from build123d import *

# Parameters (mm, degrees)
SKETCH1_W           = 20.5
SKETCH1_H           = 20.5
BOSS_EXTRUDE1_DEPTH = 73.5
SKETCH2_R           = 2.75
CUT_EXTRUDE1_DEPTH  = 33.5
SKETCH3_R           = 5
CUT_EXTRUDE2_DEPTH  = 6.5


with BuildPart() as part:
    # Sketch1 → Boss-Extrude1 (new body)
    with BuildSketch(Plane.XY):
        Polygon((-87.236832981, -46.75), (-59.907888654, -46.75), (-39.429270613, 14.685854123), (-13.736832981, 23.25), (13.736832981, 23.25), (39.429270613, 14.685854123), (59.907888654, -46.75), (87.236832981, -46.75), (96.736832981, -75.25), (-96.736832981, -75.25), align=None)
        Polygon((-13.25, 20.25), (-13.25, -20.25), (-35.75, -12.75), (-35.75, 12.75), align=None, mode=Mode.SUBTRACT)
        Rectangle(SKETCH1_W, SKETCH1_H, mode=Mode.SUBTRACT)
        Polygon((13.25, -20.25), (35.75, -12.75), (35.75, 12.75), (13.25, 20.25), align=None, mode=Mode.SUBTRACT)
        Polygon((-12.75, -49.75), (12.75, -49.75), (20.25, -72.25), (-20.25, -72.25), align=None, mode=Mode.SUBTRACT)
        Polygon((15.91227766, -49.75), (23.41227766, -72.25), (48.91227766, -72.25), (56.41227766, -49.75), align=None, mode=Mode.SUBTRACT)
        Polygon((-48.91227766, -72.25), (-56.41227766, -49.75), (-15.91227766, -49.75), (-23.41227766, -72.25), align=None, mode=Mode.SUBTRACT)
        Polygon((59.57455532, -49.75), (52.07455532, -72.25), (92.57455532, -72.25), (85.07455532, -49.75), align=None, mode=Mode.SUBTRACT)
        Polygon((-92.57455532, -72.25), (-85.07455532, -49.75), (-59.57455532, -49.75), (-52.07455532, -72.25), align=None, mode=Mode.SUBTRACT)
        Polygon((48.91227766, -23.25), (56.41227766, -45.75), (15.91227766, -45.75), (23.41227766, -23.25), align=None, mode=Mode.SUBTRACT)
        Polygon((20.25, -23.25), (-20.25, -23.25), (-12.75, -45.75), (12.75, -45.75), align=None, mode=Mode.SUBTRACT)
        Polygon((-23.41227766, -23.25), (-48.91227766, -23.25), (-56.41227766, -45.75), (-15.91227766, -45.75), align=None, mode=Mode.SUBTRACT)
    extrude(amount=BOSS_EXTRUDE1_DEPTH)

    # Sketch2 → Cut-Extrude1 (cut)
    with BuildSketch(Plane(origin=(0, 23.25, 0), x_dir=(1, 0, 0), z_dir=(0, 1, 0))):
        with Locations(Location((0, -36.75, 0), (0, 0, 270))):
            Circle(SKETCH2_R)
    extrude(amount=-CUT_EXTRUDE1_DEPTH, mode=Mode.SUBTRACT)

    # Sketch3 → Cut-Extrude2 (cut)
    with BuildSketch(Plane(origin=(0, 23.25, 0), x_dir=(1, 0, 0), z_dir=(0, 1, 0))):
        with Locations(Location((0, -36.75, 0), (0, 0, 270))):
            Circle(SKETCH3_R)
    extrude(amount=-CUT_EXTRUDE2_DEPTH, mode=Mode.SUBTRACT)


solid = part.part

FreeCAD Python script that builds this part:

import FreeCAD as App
import Part
import Sketcher
from FreeCAD import Vector
Q = App.Units.Quantity

doc = App.newDocument("Part")
body = doc.addObject("PartDesign::Body", "Body")

sketch1 = body.newObject("Sketcher::SketchObject", "Sketch")
sketch1.AttachmentSupport = (doc.getObject("XY_Plane"), [""])
sketch1.MapMode = "FlatFace"
sketch1.addGeometry(Part.LineSegment(Vector(-60, -47, 0), Vector(-87, -47, 0)), False)
sketch1.addGeometry(Part.LineSegment(Vector(-87, -47, 0), Vector(-97, -75, 0)), False)
sketch1.addGeometry(Part.LineSegment(Vector(-97, -75, 0), Vector(97, -75, 0)), False)
sketch1.addGeometry(Part.LineSegment(Vector(97, -75, 0), Vector(87, -47, 0)), False)
sketch1.addGeometry(Part.LineSegment(Vector(87, -47, 0), Vector(60, -47, 0)), False)
sketch1.addGeometry(Part.LineSegment(Vector(60, -47, 0), Vector(39, 15, 0)), False)
sketch1.addGeometry(Part.LineSegment(Vector(39, 15, 0), Vector(14, 23, 0)), False)
sketch1.addGeometry(Part.LineSegment(Vector(14, 23, 0), Vector(-14, 23, 0)), False)
sketch1.addGeometry(Part.LineSegment(Vector(-14, 23, 0), Vector(-39, 15, 0)), False)
sketch1.addGeometry(Part.LineSegment(Vector(-39, 15, 0), Vector(-60, -47, 0)), False)
sketch1.addGeometry(Part.LineSegment(Vector(60, -50, 0), Vector(85, -50, 0)), False)
sketch1.addGeometry(Part.LineSegment(Vector(85, -50, 0), Vector(93, -72, 0)), False)
sketch1.addGeometry(Part.LineSegment(Vector(93, -72, 0), Vector(52, -72, 0)), False)
sketch1.addGeometry(Part.LineSegment(Vector(52, -72, 0), Vector(60, -50, 0)), False)
sketch1.addGeometry(Part.LineSegment(Vector(16, -50, 0), Vector(56, -50, 0)), False)
sketch1.addGeometry(Part.LineSegment(Vector(56, -50, 0), Vector(49, -72, 0)), False)
sketch1.addGeometry(Part.LineSegment(Vector(49, -72, 0), Vector(23, -72, 0)), False)
sketch1.addGeometry(Part.LineSegment(Vector(23, -72, 0), Vector(16, -50, 0)), False)
sketch1.addGeometry(Part.LineSegment(Vector(49, -23, 0), Vector(56, -46, 0)), False)
sketch1.addGeometry(Part.LineSegment(Vector(56, -46, 0), Vector(16, -46, 0)), False)
sketch1.addGeometry(Part.LineSegment(Vector(16, -46, 0), Vector(23, -23, 0)), False)
sketch1.addGeometry(Part.LineSegment(Vector(23, -23, 0), Vector(49, -23, 0)), False)
sketch1.addGeometry(Part.LineSegment(Vector(-13, -50, 0), Vector(13, -50, 0)), False)
sketch1.addGeometry(Part.LineSegment(Vector(13, -50, 0), Vector(20, -72, 0)), False)
sketch1.addGeometry(Part.LineSegment(Vector(20, -72, 0), Vector(-20, -72, 0)), False)
sketch1.addGeometry(Part.LineSegment(Vector(-20, -72, 0), Vector(-13, -50, 0)), False)
sketch1.addGeometry(Part.LineSegment(Vector(-49, -72, 0), Vector(-56, -50, 0)), False)
sketch1.addGeometry(Part.LineSegment(Vector(-56, -50, 0), Vector(-16, -50, 0)), False)
sketch1.addGeometry(Part.LineSegment(Vector(-16, -50, 0), Vector(-23, -72, 0)), False)
sketch1.addGeometry(Part.LineSegment(Vector(-23, -72, 0), Vector(-49, -72, 0)), False)
sketch1.addGeometry(Part.LineSegment(Vector(-93, -72, 0), Vector(-85, -50, 0)), False)
sketch1.addGeometry(Part.LineSegment(Vector(-85, -50, 0), Vector(-60, -50, 0)), False)
sketch1.addGeometry(Part.LineSegment(Vector(-60, -50, 0), Vector(-52, -72, 0)), False)
sketch1.addGeometry(Part.LineSegment(Vector(-52, -72, 0), Vector(-93, -72, 0)), False)
sketch1.addGeometry(Part.LineSegment(Vector(20, -23, 0), Vector(13, -46, 0)), False)
sketch1.addGeometry(Part.LineSegment(Vector(13, -46, 0), Vector(-13, -46, 0)), False)
sketch1.addGeometry(Part.LineSegment(Vector(-13, -46, 0), Vector(-20, -23, 0)), False)
sketch1.addGeometry(Part.LineSegment(Vector(-20, -23, 0), Vector(20, -23, 0)), False)
sketch1.addGeometry(Part.LineSegment(Vector(-23, -23, 0), Vector(-16, -46, 0)), False)
sketch1.addGeometry(Part.LineSegment(Vector(-16, -46, 0), Vector(-56, -46, 0)), False)
sketch1.addGeometry(Part.LineSegment(Vector(-56, -46, 0), Vector(-49, -23, 0)), False)
sketch1.addGeometry(Part.LineSegment(Vector(-49, -23, 0), Vector(-23, -23, 0)), False)
sketch1.addGeometry(Part.LineSegment(Vector(13, -20, 0), Vector(13, 20, 0)), False)
sketch1.addGeometry(Part.LineSegment(Vector(13, 20, 0), Vector(36, 13, 0)), False)
sketch1.addGeometry(Part.LineSegment(Vector(36, 13, 0), Vector(36, -13, 0)), False)
sketch1.addGeometry(Part.LineSegment(Vector(36, -13, 0), Vector(13, -20, 0)), False)
sketch1.addGeometry(Part.LineSegment(Vector(-10, -10, 0), Vector(-10, 10, 0)), False)
sketch1.addGeometry(Part.LineSegment(Vector(-10, 10, 0), Vector(10, 10, 0)), False)
sketch1.addGeometry(Part.LineSegment(Vector(10, 10, 0), Vector(10, -10, 0)), False)
sketch1.addGeometry(Part.LineSegment(Vector(10, -10, 0), Vector(-10, -10, 0)), False)
sketch1.addGeometry(Part.LineSegment(Vector(-13, 20, 0), Vector(-13, -20, 0)), False)
sketch1.addGeometry(Part.LineSegment(Vector(-13, -20, 0), Vector(-36, -13, 0)), False)
sketch1.addGeometry(Part.LineSegment(Vector(-36, -13, 0), Vector(-36, 13, 0)), False)
sketch1.addGeometry(Part.LineSegment(Vector(-36, 13, 0), Vector(-13, 20, 0)), False)
sketch1.addConstraint(Sketcher.Constraint("Coincident", 0, 2, 1, 1))
sketch1.addConstraint(Sketcher.Constraint("Coincident", 1, 2, 2, 1))
sketch1.addConstraint(Sketcher.Constraint("Coincident", 2, 2, 3, 1))
sketch1.addConstraint(Sketcher.Constraint("Coincident", 3, 2, 4, 1))
sketch1.addConstraint(Sketcher.Constraint("Coincident", 4, 2, 5, 1))
sketch1.addConstraint(Sketcher.Constraint("Coincident", 5, 2, 6, 1))
sketch1.addConstraint(Sketcher.Constraint("Coincident", 6, 2, 7, 1))
sketch1.addConstraint(Sketcher.Constraint("Coincident", 7, 2, 8, 1))
sketch1.addConstraint(Sketcher.Constraint("Coincident", 8, 2, 9, 1))
sketch1.addConstraint(Sketcher.Constraint("Coincident", 9, 2, 0, 1))
sketch1.addConstraint(Sketcher.Constraint("Coincident", 10, 2, 11, 1))
sketch1.addConstraint(Sketcher.Constraint("Coincident", 11, 2, 12, 1))
sketch1.addConstraint(Sketcher.Constraint("Coincident", 12, 2, 13, 1))
sketch1.addConstraint(Sketcher.Constraint("Coincident", 13, 2, 10, 1))
sketch1.addConstraint(Sketcher.Constraint("Coincident", 14, 2, 15, 1))
sketch1.addConstraint(Sketcher.Constraint("Coincident", 15, 2, 16, 1))
sketch1.addConstraint(Sketcher.Constraint("Coincident", 16, 2, 17, 1))
sketch1.addConstraint(Sketcher.Constraint("Coincident", 17, 2, 14, 1))
sketch1.addConstraint(Sketcher.Constraint("Coincident", 18, 2, 19, 1))
sketch1.addConstraint(Sketcher.Constraint("Coincident", 19, 2, 20, 1))
sketch1.addConstraint(Sketcher.Constraint("Coincident", 20, 2, 21, 1))
sketch1.addConstraint(Sketcher.Constraint("Coincident", 21, 2, 18, 1))
sketch1.addConstraint(Sketcher.Constraint("Coincident", 22, 2, 23, 1))
sketch1.addConstraint(Sketcher.Constraint("Coincident", 23, 2, 24, 1))
sketch1.addConstraint(Sketcher.Constraint("Coincident", 24, 2, 25, 1))
sketch1.addConstraint(Sketcher.Constraint("Coincident", 25, 2, 22, 1))
sketch1.addConstraint(Sketcher.Constraint("Coincident", 26, 2, 27, 1))
sketch1.addConstraint(Sketcher.Constraint("Coincident", 27, 2, 28, 1))
sketch1.addConstraint(Sketcher.Constraint("Coincident", 28, 2, 29, 1))
sketch1.addConstraint(Sketcher.Constraint("Coincident", 29, 2, 26, 1))
sketch1.addConstraint(Sketcher.Constraint("Coincident", 30, 2, 31, 1))
sketch1.addConstraint(Sketcher.Constraint("Coincident", 31, 2, 32, 1))
sketch1.addConstraint(Sketcher.Constraint("Coincident", 32, 2, 33, 1))
sketch1.addConstraint(Sketcher.Constraint("Coincident", 33, 2, 30, 1))
sketch1.addConstraint(Sketcher.Constraint("Coincident", 34, 2, 35, 1))
sketch1.addConstraint(Sketcher.Constraint("Coincident", 35, 2, 36, 1))
sketch1.addConstraint(Sketcher.Constraint("Coincident", 36, 2, 37, 1))
sketch1.addConstraint(Sketcher.Constraint("Coincident", 37, 2, 34, 1))
sketch1.addConstraint(Sketcher.Constraint("Coincident", 38, 2, 39, 1))
sketch1.addConstraint(Sketcher.Constraint("Coincident", 39, 2, 40, 1))
sketch1.addConstraint(Sketcher.Constraint("Coincident", 40, 2, 41, 1))
sketch1.addConstraint(Sketcher.Constraint("Coincident", 41, 2, 38, 1))
sketch1.addConstraint(Sketcher.Constraint("Coincident", 42, 2, 43, 1))
sketch1.addConstraint(Sketcher.Constraint("Coincident", 43, 2, 44, 1))
sketch1.addConstraint(Sketcher.Constraint("Coincident", 44, 2, 45, 1))
sketch1.addConstraint(Sketcher.Constraint("Coincident", 45, 2, 42, 1))
sketch1.addConstraint(Sketcher.Constraint("Coincident", 46, 2, 47, 1))
sketch1.addConstraint(Sketcher.Constraint("Coincident", 47, 2, 48, 1))
sketch1.addConstraint(Sketcher.Constraint("Coincident", 48, 2, 49, 1))
sketch1.addConstraint(Sketcher.Constraint("Coincident", 49, 2, 46, 1))
sketch1.addConstraint(Sketcher.Constraint("Coincident", 50, 2, 51, 1))
sketch1.addConstraint(Sketcher.Constraint("Coincident", 51, 2, 52, 1))
sketch1.addConstraint(Sketcher.Constraint("Coincident", 52, 2, 53, 1))
sketch1.addConstraint(Sketcher.Constraint("Coincident", 53, 2, 50, 1))
sketch1.addConstraint(Sketcher.Constraint("Horizontal", 0))
sketch1.addConstraint(Sketcher.Constraint("Horizontal", 2))
sketch1.addConstraint(Sketcher.Constraint("Horizontal", 4))
sketch1.addConstraint(Sketcher.Constraint("Horizontal", 7))
sketch1.addConstraint(Sketcher.Constraint("Horizontal", 10))
sketch1.addConstraint(Sketcher.Constraint("Horizontal", 12))
sketch1.addConstraint(Sketcher.Constraint("Horizontal", 14))
sketch1.addConstraint(Sketcher.Constraint("Horizontal", 16))
sketch1.addConstraint(Sketcher.Constraint("Horizontal", 19))
sketch1.addConstraint(Sketcher.Constraint("Horizontal", 21))
sketch1.addConstraint(Sketcher.Constraint("Horizontal", 22))
sketch1.addConstraint(Sketcher.Constraint("Horizontal", 24))
sketch1.addConstraint(Sketcher.Constraint("Horizontal", 27))
sketch1.addConstraint(Sketcher.Constraint("Horizontal", 29))
sketch1.addConstraint(Sketcher.Constraint("Horizontal", 31))
sketch1.addConstraint(Sketcher.Constraint("Horizontal", 33))
sketch1.addConstraint(Sketcher.Constraint("Horizontal", 35))
sketch1.addConstraint(Sketcher.Constraint("Horizontal", 37))
sketch1.addConstraint(Sketcher.Constraint("Horizontal", 39))
sketch1.addConstraint(Sketcher.Constraint("Horizontal", 41))
sketch1.addConstraint(Sketcher.Constraint("Vertical", 42))
sketch1.addConstraint(Sketcher.Constraint("Vertical", 44))
sketch1.addConstraint(Sketcher.Constraint("Vertical", 46))
sketch1.addConstraint(Sketcher.Constraint("Horizontal", 47))
sketch1.addConstraint(Sketcher.Constraint("Vertical", 48))
sketch1.addConstraint(Sketcher.Constraint("Horizontal", 49))
sketch1.addConstraint(Sketcher.Constraint("Vertical", 50))
sketch1.addConstraint(Sketcher.Constraint("Vertical", 52))
sketch1.addConstraint(Sketcher.Constraint("Symmetric", 46, 2, 48, 2, -1, 1))
sketch1.addConstraint(Sketcher.Constraint("Symmetric", 42, 2, 50, 2, -1, 1))
sketch1.addConstraint(Sketcher.Constraint("Symmetric", 43, 2, 51, 2, -1, 1))
sketch1.addConstraint(Sketcher.Constraint("Symmetric", 0, 2, 3, 2, -2))
sketch1.addConstraint(Sketcher.Constraint("Symmetric", 5, 2, 8, 2, -2))
sketch1.addConstraint(Sketcher.Constraint("Symmetric", 14, 2, 26, 2, -2))
sketch1.addConstraint(Sketcher.Constraint("Symmetric", 16, 2, 28, 2, -2))
sketch1.addConstraint(Sketcher.Constraint("Symmetric", 10, 2, 30, 2, -2))
sketch1.addConstraint(Sketcher.Constraint("Symmetric", 12, 2, 32, 2, -2))
sketch1.addConstraint(Sketcher.Constraint("Symmetric", 19, 2, 38, 2, -2))
sketch1.addConstraint(Sketcher.Constraint("Symmetric", 21, 2, 40, 2, -2))
sketch1.addConstraint(Sketcher.Constraint("Parallel", 3, 5))
sketch1.addConstraint(Sketcher.Constraint("Perpendicular", 1, 6))
sketch1.addConstraint(Sketcher.Constraint("Perpendicular", 5, 8))
sketch1.addConstraint(Sketcher.Constraint("Perpendicular", 6, 9))
sketch1.addConstraint(Sketcher.Constraint("Perpendicular", 8, 11))
sketch1.addConstraint(Sketcher.Constraint("Parallel", 9, 13))
sketch1.addConstraint(Sketcher.Constraint("Parallel", 13, 15))
sketch1.addConstraint(Sketcher.Constraint("Parallel", 11, 17))
sketch1.addConstraint(Sketcher.Constraint("Parallel", 17, 18))
sketch1.addConstraint(Sketcher.Constraint("Parallel", 15, 20))
sketch1.addConstraint(Sketcher.Constraint("Parallel", 18, 23))
sketch1.addConstraint(Sketcher.Constraint("Parallel", 20, 25))
sketch1.addConstraint(Sketcher.Constraint("Parallel", 23, 26))
sketch1.addConstraint(Sketcher.Constraint("Parallel", 25, 28))
sketch1.addConstraint(Sketcher.Constraint("Parallel", 28, 30))
sketch1.addConstraint(Sketcher.Constraint("Parallel", 26, 32))
sketch1.addConstraint(Sketcher.Constraint("Parallel", 30, 34))
sketch1.addConstraint(Sketcher.Constraint("Parallel", 32, 36))
sketch1.addConstraint(Sketcher.Constraint("Parallel", 36, 38))
sketch1.addConstraint(Sketcher.Constraint("Parallel", 34, 40))
sketch1.addConstraint(Sketcher.Constraint("Perpendicular", 40, 43))
sketch1.addConstraint(Sketcher.Constraint("Perpendicular", 38, 45))
sketch1.addConstraint(Sketcher.Constraint("Parallel", 45, 53))
sketch1.addConstraint(Sketcher.Constraint("Horizontal", 13, 2, 14, 2))
sketch1.addConstraint(Sketcher.Constraint("Horizontal", 12, 2, 15, 2))
sketch1.addConstraint(Sketcher.Constraint("Horizontal", 17, 2, 22, 2))
sketch1.addConstraint(Sketcher.Constraint("Horizontal", 16, 2, 23, 2))
sketch1.addConstraint(Sketcher.Constraint("Horizontal", 19, 2, 34, 2))
sketch1.addConstraint(Sketcher.Constraint("Horizontal", 21, 2, 36, 2))
sketch1.addConstraint(Sketcher.Constraint("Horizontal", 45, 2, 50, 2))
sketch1.addConstraint(Sketcher.Constraint("Horizontal", 44, 2, 51, 2))
sketch1.addConstraint(Sketcher.Constraint("Horizontal", 43, 2, 52, 2))
sketch1.addConstraint(Sketcher.Constraint("Vertical", 14, 2, 18, 2))
sketch1.addConstraint(Sketcher.Constraint("Vertical", 17, 2, 19, 2))
sketch1.addConstraint(Sketcher.Constraint("Vertical", 16, 2, 20, 2))
sketch1.addConstraint(Sketcher.Constraint("Vertical", 22, 2, 34, 2))
sketch1.addConstraint(Sketcher.Constraint("Vertical", 25, 2, 35, 2))
sketch1.addConstraint(Sketcher.Constraint("Equal", 12, 14))
sketch1.addConstraint(Sketcher.Constraint("Equal", 21, 22))
sketch1.addConstraint(Sketcher.Constraint("Equal", 39, 42))
sketch1.addConstraint(Sketcher.Constraint("Equal", 41, 44))
sketch1.addConstraint(Sketcher.Constraint("Equal", 49, 46))
sketch1.addConstraint(Sketcher.Constraint("DistanceX", 10, 1, 10, 2, Q("25.5 mm")))
sketch1.addConstraint(Sketcher.Constraint("DistanceX", 12, 2, 12, 1, Q("40.5 mm")))
sketch1.addConstraint(Sketcher.Constraint("DistanceX", 47, 1, 47, 2, Q("20.5 mm")))
sketch1.addConstraint(Sketcher.Constraint("DistanceY", 4, 2, 6, 2, Q("70 mm")))
sketch1.addConstraint(Sketcher.Constraint("DistanceX", 6, 2, 2, 2, Q("83 mm")))
sketch1.addConstraint(Sketcher.Constraint("DistanceY", 10, 2, 3, 2, Q("3 mm")))
sketch1.addConstraint(Sketcher.Constraint("DistanceY", 2, 2, 11, 2, Q("3 mm")))
sketch1.addConstraint(Sketcher.Constraint("DistanceY", 4, 2, 18, 2, Q("1 mm")))
sketch1.addConstraint(Sketcher.Constraint("DistanceY", 42, 2, 6, 2, Q("3 mm")))
sketch1.addConstraint(Sketcher.Constraint("DistanceX", 42, 2, 37, 2, Q("7 mm")))
sketch1.addConstraint(Sketcher.Constraint("DistanceY", 20, 2, 43, 2, Q("36 mm")))
sketch1.addConstraint(Sketcher.Constraint("DistanceX", 36, 2, 46, 2, Q("10 mm")))
sketch1.addConstraint(Sketcher.Constraint("DistanceX", 0, 2, 0, 1, Q("27.328944 mm")))
sketch1.addConstraint(Sketcher.Constraint("DistanceX", 2, 1, 2, 2, Q("193.473666 mm")))
sketch1.addConstraint(Sketcher.Constraint("DistanceX", 14, 2, 4, 2, Q("3.495611 mm")))
sketch1.addConstraint(Sketcher.Constraint("DistanceX", -1, 1, 10, 2, Q("85.074555 mm")))
pad1 = body.newObject("PartDesign::Pad", "Pad")
pad1.Profile = sketch1
pad1.Length = 73.5

sketch2 = body.newObject("Sketcher::SketchObject", "Sketch001")
sketch2.AttachmentSupport = (doc.getObject("XZ_Plane"), [""])
sketch2.MapMode = "FlatFace"
sketch2.AttachmentOffset = App.Placement(Vector(0, 0, -23.25), App.Rotation())
sketch2.addGeometry(Part.Circle(Vector(0, 36.8, 0), Vector(0, 0, 1), 2.8), False)
sketch2.addConstraint(Sketcher.Constraint("PointOnObject", 0, 3, -2))
sketch2.addConstraint(Sketcher.Constraint("Diameter", 0, Q("5.5 mm")))
sketch2.addConstraint(Sketcher.Constraint("DistanceY", -1, 1, 0, 3, Q("36.75 mm")))
pocket1 = body.newObject("PartDesign::Pocket", "Pocket")
pocket1.Profile = sketch2
pocket1.Length = 33.5
pocket1.Reversed = True

sketch3 = body.newObject("Sketcher::SketchObject", "Sketch002")
sketch3.AttachmentSupport = (doc.getObject("XZ_Plane"), [""])
sketch3.MapMode = "FlatFace"
sketch3.AttachmentOffset = App.Placement(Vector(0, 0, -23.25), App.Rotation())
sketch3.addGeometry(Part.Circle(Vector(0, 37, 0), Vector(0, 0, 1), 5), False)
sketch3.addConstraint(Sketcher.Constraint("PointOnObject", 0, 3, -2))
sketch3.addConstraint(Sketcher.Constraint("Diameter", 0, Q("10 mm")))
sketch3.addConstraint(Sketcher.Constraint("DistanceY", -1, 1, 0, 3, Q("36.75 mm")))
pocket2 = body.newObject("PartDesign::Pocket", "Pocket001")
pocket2.Profile = sketch3
pocket2.Length = 6.5
pocket2.Reversed = True

doc.recompute()
